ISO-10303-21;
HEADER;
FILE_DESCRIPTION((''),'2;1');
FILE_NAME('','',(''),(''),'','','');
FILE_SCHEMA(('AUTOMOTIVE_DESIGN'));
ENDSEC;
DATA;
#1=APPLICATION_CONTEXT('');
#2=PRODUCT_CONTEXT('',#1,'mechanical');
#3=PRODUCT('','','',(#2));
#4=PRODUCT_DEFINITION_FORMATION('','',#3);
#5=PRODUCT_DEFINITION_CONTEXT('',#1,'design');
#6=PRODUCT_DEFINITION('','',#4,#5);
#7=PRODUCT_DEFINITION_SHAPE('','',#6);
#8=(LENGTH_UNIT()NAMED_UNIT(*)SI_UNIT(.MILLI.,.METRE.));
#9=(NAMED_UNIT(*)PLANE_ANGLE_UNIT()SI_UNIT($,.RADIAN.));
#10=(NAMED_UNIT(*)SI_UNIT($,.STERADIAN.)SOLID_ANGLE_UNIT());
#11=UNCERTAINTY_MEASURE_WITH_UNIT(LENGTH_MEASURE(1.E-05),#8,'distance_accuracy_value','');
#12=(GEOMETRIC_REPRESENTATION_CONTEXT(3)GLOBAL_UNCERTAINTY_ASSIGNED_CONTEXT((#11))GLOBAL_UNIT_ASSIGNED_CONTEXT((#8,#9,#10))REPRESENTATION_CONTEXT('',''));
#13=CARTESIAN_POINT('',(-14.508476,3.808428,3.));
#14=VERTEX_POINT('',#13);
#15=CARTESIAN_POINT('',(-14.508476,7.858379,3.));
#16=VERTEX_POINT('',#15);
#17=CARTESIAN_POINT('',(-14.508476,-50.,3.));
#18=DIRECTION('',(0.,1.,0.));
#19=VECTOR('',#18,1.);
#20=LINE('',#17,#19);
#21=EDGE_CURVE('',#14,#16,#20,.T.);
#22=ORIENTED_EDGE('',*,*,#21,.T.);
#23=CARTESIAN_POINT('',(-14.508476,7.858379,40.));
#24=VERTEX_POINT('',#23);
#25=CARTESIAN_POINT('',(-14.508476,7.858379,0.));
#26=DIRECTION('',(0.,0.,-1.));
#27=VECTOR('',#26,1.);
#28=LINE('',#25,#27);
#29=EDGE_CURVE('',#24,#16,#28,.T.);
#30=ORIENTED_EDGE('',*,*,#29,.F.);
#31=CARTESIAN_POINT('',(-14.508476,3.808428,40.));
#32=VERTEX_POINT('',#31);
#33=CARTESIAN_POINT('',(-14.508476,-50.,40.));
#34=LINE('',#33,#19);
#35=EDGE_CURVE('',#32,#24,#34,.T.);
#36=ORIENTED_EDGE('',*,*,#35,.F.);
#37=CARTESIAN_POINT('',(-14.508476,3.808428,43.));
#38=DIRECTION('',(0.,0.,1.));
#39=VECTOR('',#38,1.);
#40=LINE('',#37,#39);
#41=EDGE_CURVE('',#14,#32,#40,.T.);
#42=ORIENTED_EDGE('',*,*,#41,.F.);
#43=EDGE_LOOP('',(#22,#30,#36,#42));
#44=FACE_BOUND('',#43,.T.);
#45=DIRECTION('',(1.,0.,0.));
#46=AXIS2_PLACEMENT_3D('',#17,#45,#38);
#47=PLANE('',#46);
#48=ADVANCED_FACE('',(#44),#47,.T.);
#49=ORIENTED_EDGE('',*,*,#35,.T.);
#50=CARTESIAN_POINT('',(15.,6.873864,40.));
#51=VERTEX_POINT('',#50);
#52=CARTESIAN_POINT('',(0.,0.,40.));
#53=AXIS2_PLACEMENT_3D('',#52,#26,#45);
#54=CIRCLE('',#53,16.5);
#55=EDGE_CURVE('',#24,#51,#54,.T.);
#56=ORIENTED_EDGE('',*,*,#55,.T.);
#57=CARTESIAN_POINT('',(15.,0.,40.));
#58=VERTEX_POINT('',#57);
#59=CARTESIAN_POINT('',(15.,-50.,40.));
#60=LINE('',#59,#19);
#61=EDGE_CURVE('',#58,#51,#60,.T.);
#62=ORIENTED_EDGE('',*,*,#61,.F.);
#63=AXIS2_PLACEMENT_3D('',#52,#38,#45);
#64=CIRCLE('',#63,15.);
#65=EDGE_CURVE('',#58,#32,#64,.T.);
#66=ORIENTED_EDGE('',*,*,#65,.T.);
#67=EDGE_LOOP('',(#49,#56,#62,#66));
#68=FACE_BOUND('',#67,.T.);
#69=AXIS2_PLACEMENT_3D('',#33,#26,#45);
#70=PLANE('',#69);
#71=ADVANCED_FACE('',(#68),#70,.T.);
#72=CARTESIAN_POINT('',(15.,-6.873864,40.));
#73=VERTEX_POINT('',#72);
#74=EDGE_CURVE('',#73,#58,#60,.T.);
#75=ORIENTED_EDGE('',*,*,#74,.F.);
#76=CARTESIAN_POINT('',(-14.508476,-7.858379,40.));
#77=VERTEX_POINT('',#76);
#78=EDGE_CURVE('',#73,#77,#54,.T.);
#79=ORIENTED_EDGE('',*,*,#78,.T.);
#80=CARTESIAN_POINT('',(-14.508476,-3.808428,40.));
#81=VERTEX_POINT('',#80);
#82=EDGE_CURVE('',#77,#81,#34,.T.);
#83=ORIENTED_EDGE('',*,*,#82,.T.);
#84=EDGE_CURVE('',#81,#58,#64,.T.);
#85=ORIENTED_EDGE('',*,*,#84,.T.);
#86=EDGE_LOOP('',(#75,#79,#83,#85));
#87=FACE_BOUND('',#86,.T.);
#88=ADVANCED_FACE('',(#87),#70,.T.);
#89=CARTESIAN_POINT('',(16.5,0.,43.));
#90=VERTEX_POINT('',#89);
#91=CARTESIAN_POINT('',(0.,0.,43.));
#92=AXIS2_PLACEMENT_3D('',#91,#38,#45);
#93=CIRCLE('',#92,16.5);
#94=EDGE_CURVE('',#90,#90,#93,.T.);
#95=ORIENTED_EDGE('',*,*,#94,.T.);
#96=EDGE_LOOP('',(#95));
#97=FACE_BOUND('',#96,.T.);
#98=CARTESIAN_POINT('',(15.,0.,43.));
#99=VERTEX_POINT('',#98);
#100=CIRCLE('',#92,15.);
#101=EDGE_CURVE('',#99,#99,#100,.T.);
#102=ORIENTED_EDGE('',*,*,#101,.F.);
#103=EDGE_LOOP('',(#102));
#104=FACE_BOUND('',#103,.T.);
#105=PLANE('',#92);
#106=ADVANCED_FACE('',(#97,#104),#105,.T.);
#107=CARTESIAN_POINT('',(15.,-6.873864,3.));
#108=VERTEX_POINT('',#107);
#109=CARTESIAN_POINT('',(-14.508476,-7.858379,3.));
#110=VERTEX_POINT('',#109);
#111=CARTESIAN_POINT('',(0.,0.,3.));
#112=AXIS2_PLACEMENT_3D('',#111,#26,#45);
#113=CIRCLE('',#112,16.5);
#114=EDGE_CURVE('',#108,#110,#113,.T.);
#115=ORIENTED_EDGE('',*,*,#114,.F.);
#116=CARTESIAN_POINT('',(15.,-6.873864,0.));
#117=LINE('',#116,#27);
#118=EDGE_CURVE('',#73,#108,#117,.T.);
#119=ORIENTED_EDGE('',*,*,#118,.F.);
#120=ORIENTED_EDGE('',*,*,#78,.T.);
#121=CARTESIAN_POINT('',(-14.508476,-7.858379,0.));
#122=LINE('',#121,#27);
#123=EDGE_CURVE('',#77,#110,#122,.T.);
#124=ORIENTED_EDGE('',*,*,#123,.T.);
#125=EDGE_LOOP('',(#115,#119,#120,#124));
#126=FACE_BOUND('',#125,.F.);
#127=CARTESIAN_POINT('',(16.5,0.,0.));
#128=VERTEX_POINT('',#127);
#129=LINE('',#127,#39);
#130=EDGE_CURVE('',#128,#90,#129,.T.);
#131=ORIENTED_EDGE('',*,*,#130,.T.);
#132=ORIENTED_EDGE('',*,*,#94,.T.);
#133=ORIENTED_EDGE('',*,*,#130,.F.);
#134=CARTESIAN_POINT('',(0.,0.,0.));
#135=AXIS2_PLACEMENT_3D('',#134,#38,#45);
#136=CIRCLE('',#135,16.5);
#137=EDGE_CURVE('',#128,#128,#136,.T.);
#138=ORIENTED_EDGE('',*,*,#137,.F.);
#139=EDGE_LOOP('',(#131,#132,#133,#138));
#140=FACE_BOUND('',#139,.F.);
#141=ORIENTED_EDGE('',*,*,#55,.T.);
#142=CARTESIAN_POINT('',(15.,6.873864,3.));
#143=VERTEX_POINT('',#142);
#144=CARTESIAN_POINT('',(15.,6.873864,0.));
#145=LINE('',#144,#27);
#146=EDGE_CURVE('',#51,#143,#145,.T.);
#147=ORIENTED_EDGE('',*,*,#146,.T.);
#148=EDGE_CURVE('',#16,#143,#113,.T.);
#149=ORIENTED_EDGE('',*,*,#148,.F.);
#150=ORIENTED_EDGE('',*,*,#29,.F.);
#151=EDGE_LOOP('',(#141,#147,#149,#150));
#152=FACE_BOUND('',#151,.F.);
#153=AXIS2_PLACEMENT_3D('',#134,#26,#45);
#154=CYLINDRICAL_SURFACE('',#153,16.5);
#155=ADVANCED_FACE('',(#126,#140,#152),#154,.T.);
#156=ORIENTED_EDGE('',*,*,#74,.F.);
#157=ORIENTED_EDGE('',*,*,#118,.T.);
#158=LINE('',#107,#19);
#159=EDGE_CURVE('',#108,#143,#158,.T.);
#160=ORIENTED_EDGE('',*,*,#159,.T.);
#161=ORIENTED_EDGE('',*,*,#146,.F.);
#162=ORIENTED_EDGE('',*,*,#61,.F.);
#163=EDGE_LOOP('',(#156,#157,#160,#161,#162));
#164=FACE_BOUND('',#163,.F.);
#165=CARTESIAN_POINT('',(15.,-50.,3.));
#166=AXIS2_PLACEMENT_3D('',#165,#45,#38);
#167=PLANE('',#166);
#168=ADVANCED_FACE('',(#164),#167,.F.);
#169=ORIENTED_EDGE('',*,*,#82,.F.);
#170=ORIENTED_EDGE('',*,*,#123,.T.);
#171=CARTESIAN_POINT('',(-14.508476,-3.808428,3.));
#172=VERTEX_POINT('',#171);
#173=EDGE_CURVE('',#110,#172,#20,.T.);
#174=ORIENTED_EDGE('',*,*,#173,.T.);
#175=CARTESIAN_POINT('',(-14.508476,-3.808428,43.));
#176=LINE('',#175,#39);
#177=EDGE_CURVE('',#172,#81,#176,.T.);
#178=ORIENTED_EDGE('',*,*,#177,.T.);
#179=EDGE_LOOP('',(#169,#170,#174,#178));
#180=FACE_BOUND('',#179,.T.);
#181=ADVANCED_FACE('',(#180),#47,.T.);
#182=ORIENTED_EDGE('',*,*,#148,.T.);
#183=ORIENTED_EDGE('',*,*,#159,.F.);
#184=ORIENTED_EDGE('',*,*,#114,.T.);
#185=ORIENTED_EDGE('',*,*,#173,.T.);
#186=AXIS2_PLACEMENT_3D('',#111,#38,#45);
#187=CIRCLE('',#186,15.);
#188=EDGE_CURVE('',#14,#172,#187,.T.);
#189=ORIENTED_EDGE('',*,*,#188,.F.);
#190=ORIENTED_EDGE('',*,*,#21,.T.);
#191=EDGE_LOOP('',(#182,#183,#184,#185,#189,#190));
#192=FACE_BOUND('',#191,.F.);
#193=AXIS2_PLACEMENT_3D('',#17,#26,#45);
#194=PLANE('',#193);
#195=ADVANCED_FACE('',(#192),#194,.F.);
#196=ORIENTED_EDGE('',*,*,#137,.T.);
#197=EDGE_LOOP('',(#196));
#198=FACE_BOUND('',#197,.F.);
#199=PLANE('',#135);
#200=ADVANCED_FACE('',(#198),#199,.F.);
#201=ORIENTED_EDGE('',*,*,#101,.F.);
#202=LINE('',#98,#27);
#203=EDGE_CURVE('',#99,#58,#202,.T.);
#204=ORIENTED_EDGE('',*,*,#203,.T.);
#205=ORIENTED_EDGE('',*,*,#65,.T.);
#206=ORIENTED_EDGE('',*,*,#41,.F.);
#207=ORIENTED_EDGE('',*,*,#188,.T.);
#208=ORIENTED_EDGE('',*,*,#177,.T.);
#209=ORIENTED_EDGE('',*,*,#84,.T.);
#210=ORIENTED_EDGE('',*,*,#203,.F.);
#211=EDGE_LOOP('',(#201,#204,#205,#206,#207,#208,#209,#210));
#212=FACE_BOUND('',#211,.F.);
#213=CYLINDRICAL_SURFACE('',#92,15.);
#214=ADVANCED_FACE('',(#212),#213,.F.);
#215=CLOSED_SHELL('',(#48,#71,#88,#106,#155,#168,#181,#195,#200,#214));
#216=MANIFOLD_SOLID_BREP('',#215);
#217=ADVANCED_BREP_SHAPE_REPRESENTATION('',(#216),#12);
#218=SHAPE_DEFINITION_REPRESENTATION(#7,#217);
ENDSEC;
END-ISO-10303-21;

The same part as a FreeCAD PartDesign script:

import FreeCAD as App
import Part
import Sketcher


def add_polygon(sketch, points):
    """Adds a closed chain of lines whose ends are joined by coincident constraints."""
    first, n = sketch.GeometryCount, len(points)
    for a, b in zip(points, points[1:] + points[:1]):
        sketch.addGeometry(Part.LineSegment(App.Vector(*a, 0), App.Vector(*b, 0)), False)
    for i in range(n):
        sketch.addConstraint(Sketcher.Constraint("Coincident", first + i, 2, first + (i + 1) % n, 1))

doc = App.newDocument("Part")
body = doc.addObject("PartDesign::Body", "Body")

# Sketch on XY plane
sketch1 = body.newObject("Sketcher::SketchObject", "Sketch")
sketch1.AttachmentSupport = (doc.getObject("XY_Plane"), [""])
sketch1.MapMode = "FlatFace"
sketch1.addGeometry(Part.Circle(App.Vector(0, 0, 0), App.Vector(0, 0, 1), 16), False)
sketch1.addConstraint([
    Sketcher.Constraint("Coincident", 0, 3, -1, 1),
    Sketcher.Constraint("Diameter", 0, 33.0),
])
pad1 = body.newObject("PartDesign::Pad", "Pad")
pad1.Profile = sketch1
pad1.Length = 43

# Sketch on XY plane
sketch2 = body.newObject("Sketcher::SketchObject", "Sketch001")
sketch2.AttachmentSupport = (doc.getObject("XY_Plane"), [""])
sketch2.MapMode = "FlatFace"
sketch2.AttachmentOffset = App.Placement(App.Vector(0, 0, 43), App.Rotation())
sketch2.addGeometry(Part.Circle(App.Vector(0, 0, 0), App.Vector(0, 0, 1), 15), False)
sketch2.addConstraint([
    Sketcher.Constraint("Coincident", 0, 3, -1, 1),
    Sketcher.Constraint("Diameter", 0, 30.0),
])
pocket1 = body.newObject("PartDesign::Pocket", "Pocket")
pocket1.Profile = sketch2
pocket1.Length = 40

# Sketch on XZ plane
sketch3 = body.newObject("Sketcher::SketchObject", "Sketch002")
sketch3.AttachmentSupport = (doc.getObject("XZ_Plane"), [""])
sketch3.MapMode = "FlatFace"
sketch3.AttachmentOffset = App.Placement(App.Vector(0, 0, 50), App.Rotation())
add_polygon(sketch3, [(-15, 40), (-15, 3), (15, 3), (15, 40)])  # lines 0-3
sketch3.addConstraint([
    Sketcher.Constraint("Vertical", 0),
    Sketcher.Constraint("Horizontal", 1),
    Sketcher.Constraint("Vertical", 2),
    Sketcher.Constraint("Horizontal", 3),
    Sketcher.Constraint("DistanceY", 0, 2, 0, 1, 37.0),
    Sketcher.Constraint("DistanceY", -1, 1, 0, 2, 3.0),
    Sketcher.Constraint("DistanceX", -1, 1, 1, 2, 15.0),
    Sketcher.Constraint("DistanceX", 1, 1, 1, 2, 29.508476),
])
pocket2 = body.newObject("PartDesign::Pocket", "Pocket001")
pocket2.Profile = sketch3
pocket2.Type = "ThroughAll"

doc.recompute()
